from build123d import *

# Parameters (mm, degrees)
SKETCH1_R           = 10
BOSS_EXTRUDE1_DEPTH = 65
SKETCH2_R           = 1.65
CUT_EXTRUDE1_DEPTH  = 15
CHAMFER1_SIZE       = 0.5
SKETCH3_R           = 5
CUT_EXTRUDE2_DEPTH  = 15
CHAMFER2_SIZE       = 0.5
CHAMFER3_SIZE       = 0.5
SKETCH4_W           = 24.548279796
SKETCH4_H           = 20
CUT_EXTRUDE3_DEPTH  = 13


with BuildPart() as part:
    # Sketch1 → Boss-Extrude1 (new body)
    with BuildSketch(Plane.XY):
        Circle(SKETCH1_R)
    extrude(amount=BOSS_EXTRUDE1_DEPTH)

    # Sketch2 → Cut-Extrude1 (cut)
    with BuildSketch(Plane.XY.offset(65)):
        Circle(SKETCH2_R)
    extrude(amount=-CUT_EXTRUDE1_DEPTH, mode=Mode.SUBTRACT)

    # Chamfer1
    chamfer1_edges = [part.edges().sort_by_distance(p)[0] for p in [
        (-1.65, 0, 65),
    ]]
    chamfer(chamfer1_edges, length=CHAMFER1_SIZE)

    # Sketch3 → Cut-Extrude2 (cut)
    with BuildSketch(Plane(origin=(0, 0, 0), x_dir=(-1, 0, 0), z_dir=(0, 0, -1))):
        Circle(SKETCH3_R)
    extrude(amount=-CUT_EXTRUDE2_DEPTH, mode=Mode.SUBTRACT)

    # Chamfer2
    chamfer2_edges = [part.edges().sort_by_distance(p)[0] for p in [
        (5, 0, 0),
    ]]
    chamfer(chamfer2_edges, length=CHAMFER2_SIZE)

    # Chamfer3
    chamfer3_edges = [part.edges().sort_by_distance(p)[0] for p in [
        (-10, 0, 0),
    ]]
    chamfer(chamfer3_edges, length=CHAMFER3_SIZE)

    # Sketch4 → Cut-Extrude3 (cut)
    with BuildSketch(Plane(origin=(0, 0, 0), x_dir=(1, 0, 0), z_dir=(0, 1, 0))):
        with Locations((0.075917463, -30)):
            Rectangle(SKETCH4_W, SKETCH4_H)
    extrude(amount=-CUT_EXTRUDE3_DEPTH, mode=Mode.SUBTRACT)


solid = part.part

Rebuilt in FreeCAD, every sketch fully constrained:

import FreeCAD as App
import Part
import Sketcher

V = App.Vector


def edges_at(feature, points):
    """Names of the edges that pass closest to the given points."""
    edges = feature.Shape.Edges
    near = lambda p: min(range(len(edges)), key=lambda i: edges[i].distToShape(Part.Vertex(*p))[0])
    return sorted({f"Edge{near(p) + 1}" for p in points})


def add_polygon(sketch, points):
    """Adds a closed chain of lines whose ends are joined by coincident constraints."""
    first, n = sketch.GeometryCount, len(points)
    for a, b in zip(points, points[1:] + points[:1]):
        sketch.addGeometry(Part.LineSegment(App.Vector(*a, 0), App.Vector(*b, 0)), False)
    for i in range(n):
        sketch.addConstraint(Sketcher.Constraint("Coincident", first + i, 2, first + (i + 1) % n, 1))

doc = App.newDocument("Part")
params = doc.addObject("Spreadsheet::Sheet", "Params")
for row, (alias, value) in enumerate([
    ("sketch1_diameter", "20 mm"),
    ("pad1_length", "65 mm"),
    ("sketch2_diameter", "3.3 mm"),
    ("pocket1_length", "15 mm"),
    ("chamfer_size", "0.5 mm"),
    ("sketch3_diameter", "10 mm"),
    ("pocket2_length", "15 mm"),
    ("chamfer2_size", "0.5 mm"),
    ("chamfer3_size", "0.5 mm"),
    ("sketch4_height", "20 mm"),
    ("pocket3_length", "13 mm"),
], start=1):
    params.set(f"A{row}", alias)
    params.set(f"B{row}", "=" + value)
    params.setAlias(f"B{row}", alias)

body = doc.addObject("PartDesign::Body", "Body")

# Sketch on XY plane
sketch1 = body.newObject("Sketcher::SketchObject", "Sketch")
sketch1.AttachmentSupport = (doc.getObject("XY_Plane"), [""])
sketch1.MapMode = "FlatFace"
sketch1.addGeometry(Part.Circle(V(0, 0, 0), V(0, 0, 1), 10), False)
sketch1.addConstraint([
    Sketcher.Constraint("Coincident", 0, 3, -1, 1),
    Sketcher.Constraint("Diameter", 0, 20.0),
])
sketch1.setExpression("Constraints[1]", "Params.sketch1_diameter")
pad1 = body.newObject("PartDesign::Pad", "Pad")
pad1.Profile = sketch1
pad1.setExpression("Length", "Params.pad1_length")

# Sketch on XY plane
sketch2 = body.newObject("Sketcher::SketchObject", "Sketch001")
sketch2.AttachmentSupport = (doc.getObject("XY_Plane"), [""])
sketch2.MapMode = "FlatFace"
sketch2.AttachmentOffset = App.Placement(V(0, 0, 65), App.Rotation())
sketch2.addGeometry(Part.Circle(V(0, 0, 0), V(0, 0, 1), 1.6), False)
sketch2.addConstraint([
    Sketcher.Constraint("Coincident", 0, 3, -1, 1),
    Sketcher.Constraint("Diameter", 0, 3.3),
])
sketch2.setExpression("Constraints[1]", "Params.sketch2_diameter")
pocket1 = body.newObject("PartDesign::Pocket", "Pocket")
pocket1.Profile = sketch2
pocket1.setExpression("Length", "Params.pocket1_length")
doc.recompute()

chamfer = body.newObject("PartDesign::Chamfer", "Chamfer")
chamfer.Base = (pocket1, edges_at(pocket1, [(-1.65, 0, 65)]))
chamfer.setExpression("Size", "Params.chamfer_size")

# Sketch on XY plane
sketch3 = body.newObject("Sketcher::SketchObject", "Sketch002")
sketch3.AttachmentSupport = (doc.getObject("XY_Plane"), [""])
sketch3.MapMode = "FlatFace"
sketch3.addGeometry(Part.Circle(V(0, 0, 0), V(0, 0, 1), 5), False)
sketch3.addConstraint([
    Sketcher.Constraint("Coincident", 0, 3, -1, 1),
    Sketcher.Constraint("Diameter", 0, 10.0),
])
sketch3.setExpression("Constraints[1]", "Params.sketch3_diameter")
pocket2 = body.newObject("PartDesign::Pocket", "Pocket001")
pocket2.Profile = sketch3
pocket2.setExpression("Length", "Params.pocket2_length")
pocket2.Reversed = True
doc.recompute()

chamfer2 = body.newObject("PartDesign::Chamfer", "Chamfer001")
chamfer2.Base = (pocket2, edges_at(pocket2, [(5, 0, 0)]))
chamfer2.setExpression("Size", "Params.chamfer2_size")
doc.recompute()

chamfer3 = body.newObject("PartDesign::Chamfer", "Chamfer002")
chamfer3.Base = (chamfer2, edges_at(chamfer2, [(-10, 0, 0)]))
chamfer3.setExpression("Size", "Params.chamfer3_size")

# Sketch on XZ plane
sketch4 = body.newObject("Sketcher::SketchObject", "Sketch003")
sketch4.AttachmentSupport = (doc.getObject("XZ_Plane"), [""])
sketch4.MapMode = "FlatFace"
add_polygon(sketch4, [(-12, 20), (-12, 40), (12, 40), (12, 20)])  # lines 0-3
sketch4.addConstraint([
    Sketcher.Constraint("Vertical", 0),
    Sketcher.Constraint("Horizontal", 1),
    Sketcher.Constraint("Vertical", 2),
    Sketcher.Constraint("Horizontal", 3),
    Sketcher.Constraint("DistanceY", 0, 1, 0, 2, 20.0),
    Sketcher.Constraint("DistanceY", -1, 1, 0, 2, 40.0),
    Sketcher.Constraint("DistanceX", 1, 1, 1, 2, 24.54828),
    Sketcher.Constraint("DistanceX", 0, 2, -1, 1, 12.198222),
])
sketch4.setExpression("Constraints[8]", "Params.sketch4_height")
pocket3 = body.newObject("PartDesign::Pocket", "Pocket002")
pocket3.Profile = sketch4
pocket3.setExpression("Length", "Params.pocket3_length")
pocket3.Reversed = True

doc.recompute()
